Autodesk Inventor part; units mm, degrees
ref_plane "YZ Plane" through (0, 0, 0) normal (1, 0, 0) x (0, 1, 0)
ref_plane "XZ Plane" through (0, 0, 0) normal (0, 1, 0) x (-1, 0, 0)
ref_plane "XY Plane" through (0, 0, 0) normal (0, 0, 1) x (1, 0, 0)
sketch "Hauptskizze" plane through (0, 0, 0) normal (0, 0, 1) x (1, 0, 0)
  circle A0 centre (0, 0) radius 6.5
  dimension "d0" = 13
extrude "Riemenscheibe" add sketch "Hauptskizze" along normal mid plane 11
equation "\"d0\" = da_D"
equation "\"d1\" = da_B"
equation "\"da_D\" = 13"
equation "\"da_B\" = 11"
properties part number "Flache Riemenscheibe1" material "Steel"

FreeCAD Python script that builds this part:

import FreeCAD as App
import Part
import Sketcher
from FreeCAD import Vector

doc = App.newDocument("Part")
body = doc.addObject("PartDesign::Body", "Body")

sketch1 = body.newObject("Sketcher::SketchObject", "Sketch")
sketch1.AttachmentSupport = (doc.getObject("XY_Plane"), [""])
sketch1.MapMode = "FlatFace"
sketch1.addGeometry(Part.Circle(Vector(0, 0, 0), Vector(0, 0, 1), 6), False)
sketch1.addConstraint([
    Sketcher.Constraint("Coincident", 0, 3, -1, 1),
    Sketcher.Constraint("Diameter", 0, 13.0),
])
pad1 = body.newObject("PartDesign::Pad", "Pad")
pad1.Profile = sketch1
pad1.Length = 11
pad1.Midplane = True

doc.recompute()
